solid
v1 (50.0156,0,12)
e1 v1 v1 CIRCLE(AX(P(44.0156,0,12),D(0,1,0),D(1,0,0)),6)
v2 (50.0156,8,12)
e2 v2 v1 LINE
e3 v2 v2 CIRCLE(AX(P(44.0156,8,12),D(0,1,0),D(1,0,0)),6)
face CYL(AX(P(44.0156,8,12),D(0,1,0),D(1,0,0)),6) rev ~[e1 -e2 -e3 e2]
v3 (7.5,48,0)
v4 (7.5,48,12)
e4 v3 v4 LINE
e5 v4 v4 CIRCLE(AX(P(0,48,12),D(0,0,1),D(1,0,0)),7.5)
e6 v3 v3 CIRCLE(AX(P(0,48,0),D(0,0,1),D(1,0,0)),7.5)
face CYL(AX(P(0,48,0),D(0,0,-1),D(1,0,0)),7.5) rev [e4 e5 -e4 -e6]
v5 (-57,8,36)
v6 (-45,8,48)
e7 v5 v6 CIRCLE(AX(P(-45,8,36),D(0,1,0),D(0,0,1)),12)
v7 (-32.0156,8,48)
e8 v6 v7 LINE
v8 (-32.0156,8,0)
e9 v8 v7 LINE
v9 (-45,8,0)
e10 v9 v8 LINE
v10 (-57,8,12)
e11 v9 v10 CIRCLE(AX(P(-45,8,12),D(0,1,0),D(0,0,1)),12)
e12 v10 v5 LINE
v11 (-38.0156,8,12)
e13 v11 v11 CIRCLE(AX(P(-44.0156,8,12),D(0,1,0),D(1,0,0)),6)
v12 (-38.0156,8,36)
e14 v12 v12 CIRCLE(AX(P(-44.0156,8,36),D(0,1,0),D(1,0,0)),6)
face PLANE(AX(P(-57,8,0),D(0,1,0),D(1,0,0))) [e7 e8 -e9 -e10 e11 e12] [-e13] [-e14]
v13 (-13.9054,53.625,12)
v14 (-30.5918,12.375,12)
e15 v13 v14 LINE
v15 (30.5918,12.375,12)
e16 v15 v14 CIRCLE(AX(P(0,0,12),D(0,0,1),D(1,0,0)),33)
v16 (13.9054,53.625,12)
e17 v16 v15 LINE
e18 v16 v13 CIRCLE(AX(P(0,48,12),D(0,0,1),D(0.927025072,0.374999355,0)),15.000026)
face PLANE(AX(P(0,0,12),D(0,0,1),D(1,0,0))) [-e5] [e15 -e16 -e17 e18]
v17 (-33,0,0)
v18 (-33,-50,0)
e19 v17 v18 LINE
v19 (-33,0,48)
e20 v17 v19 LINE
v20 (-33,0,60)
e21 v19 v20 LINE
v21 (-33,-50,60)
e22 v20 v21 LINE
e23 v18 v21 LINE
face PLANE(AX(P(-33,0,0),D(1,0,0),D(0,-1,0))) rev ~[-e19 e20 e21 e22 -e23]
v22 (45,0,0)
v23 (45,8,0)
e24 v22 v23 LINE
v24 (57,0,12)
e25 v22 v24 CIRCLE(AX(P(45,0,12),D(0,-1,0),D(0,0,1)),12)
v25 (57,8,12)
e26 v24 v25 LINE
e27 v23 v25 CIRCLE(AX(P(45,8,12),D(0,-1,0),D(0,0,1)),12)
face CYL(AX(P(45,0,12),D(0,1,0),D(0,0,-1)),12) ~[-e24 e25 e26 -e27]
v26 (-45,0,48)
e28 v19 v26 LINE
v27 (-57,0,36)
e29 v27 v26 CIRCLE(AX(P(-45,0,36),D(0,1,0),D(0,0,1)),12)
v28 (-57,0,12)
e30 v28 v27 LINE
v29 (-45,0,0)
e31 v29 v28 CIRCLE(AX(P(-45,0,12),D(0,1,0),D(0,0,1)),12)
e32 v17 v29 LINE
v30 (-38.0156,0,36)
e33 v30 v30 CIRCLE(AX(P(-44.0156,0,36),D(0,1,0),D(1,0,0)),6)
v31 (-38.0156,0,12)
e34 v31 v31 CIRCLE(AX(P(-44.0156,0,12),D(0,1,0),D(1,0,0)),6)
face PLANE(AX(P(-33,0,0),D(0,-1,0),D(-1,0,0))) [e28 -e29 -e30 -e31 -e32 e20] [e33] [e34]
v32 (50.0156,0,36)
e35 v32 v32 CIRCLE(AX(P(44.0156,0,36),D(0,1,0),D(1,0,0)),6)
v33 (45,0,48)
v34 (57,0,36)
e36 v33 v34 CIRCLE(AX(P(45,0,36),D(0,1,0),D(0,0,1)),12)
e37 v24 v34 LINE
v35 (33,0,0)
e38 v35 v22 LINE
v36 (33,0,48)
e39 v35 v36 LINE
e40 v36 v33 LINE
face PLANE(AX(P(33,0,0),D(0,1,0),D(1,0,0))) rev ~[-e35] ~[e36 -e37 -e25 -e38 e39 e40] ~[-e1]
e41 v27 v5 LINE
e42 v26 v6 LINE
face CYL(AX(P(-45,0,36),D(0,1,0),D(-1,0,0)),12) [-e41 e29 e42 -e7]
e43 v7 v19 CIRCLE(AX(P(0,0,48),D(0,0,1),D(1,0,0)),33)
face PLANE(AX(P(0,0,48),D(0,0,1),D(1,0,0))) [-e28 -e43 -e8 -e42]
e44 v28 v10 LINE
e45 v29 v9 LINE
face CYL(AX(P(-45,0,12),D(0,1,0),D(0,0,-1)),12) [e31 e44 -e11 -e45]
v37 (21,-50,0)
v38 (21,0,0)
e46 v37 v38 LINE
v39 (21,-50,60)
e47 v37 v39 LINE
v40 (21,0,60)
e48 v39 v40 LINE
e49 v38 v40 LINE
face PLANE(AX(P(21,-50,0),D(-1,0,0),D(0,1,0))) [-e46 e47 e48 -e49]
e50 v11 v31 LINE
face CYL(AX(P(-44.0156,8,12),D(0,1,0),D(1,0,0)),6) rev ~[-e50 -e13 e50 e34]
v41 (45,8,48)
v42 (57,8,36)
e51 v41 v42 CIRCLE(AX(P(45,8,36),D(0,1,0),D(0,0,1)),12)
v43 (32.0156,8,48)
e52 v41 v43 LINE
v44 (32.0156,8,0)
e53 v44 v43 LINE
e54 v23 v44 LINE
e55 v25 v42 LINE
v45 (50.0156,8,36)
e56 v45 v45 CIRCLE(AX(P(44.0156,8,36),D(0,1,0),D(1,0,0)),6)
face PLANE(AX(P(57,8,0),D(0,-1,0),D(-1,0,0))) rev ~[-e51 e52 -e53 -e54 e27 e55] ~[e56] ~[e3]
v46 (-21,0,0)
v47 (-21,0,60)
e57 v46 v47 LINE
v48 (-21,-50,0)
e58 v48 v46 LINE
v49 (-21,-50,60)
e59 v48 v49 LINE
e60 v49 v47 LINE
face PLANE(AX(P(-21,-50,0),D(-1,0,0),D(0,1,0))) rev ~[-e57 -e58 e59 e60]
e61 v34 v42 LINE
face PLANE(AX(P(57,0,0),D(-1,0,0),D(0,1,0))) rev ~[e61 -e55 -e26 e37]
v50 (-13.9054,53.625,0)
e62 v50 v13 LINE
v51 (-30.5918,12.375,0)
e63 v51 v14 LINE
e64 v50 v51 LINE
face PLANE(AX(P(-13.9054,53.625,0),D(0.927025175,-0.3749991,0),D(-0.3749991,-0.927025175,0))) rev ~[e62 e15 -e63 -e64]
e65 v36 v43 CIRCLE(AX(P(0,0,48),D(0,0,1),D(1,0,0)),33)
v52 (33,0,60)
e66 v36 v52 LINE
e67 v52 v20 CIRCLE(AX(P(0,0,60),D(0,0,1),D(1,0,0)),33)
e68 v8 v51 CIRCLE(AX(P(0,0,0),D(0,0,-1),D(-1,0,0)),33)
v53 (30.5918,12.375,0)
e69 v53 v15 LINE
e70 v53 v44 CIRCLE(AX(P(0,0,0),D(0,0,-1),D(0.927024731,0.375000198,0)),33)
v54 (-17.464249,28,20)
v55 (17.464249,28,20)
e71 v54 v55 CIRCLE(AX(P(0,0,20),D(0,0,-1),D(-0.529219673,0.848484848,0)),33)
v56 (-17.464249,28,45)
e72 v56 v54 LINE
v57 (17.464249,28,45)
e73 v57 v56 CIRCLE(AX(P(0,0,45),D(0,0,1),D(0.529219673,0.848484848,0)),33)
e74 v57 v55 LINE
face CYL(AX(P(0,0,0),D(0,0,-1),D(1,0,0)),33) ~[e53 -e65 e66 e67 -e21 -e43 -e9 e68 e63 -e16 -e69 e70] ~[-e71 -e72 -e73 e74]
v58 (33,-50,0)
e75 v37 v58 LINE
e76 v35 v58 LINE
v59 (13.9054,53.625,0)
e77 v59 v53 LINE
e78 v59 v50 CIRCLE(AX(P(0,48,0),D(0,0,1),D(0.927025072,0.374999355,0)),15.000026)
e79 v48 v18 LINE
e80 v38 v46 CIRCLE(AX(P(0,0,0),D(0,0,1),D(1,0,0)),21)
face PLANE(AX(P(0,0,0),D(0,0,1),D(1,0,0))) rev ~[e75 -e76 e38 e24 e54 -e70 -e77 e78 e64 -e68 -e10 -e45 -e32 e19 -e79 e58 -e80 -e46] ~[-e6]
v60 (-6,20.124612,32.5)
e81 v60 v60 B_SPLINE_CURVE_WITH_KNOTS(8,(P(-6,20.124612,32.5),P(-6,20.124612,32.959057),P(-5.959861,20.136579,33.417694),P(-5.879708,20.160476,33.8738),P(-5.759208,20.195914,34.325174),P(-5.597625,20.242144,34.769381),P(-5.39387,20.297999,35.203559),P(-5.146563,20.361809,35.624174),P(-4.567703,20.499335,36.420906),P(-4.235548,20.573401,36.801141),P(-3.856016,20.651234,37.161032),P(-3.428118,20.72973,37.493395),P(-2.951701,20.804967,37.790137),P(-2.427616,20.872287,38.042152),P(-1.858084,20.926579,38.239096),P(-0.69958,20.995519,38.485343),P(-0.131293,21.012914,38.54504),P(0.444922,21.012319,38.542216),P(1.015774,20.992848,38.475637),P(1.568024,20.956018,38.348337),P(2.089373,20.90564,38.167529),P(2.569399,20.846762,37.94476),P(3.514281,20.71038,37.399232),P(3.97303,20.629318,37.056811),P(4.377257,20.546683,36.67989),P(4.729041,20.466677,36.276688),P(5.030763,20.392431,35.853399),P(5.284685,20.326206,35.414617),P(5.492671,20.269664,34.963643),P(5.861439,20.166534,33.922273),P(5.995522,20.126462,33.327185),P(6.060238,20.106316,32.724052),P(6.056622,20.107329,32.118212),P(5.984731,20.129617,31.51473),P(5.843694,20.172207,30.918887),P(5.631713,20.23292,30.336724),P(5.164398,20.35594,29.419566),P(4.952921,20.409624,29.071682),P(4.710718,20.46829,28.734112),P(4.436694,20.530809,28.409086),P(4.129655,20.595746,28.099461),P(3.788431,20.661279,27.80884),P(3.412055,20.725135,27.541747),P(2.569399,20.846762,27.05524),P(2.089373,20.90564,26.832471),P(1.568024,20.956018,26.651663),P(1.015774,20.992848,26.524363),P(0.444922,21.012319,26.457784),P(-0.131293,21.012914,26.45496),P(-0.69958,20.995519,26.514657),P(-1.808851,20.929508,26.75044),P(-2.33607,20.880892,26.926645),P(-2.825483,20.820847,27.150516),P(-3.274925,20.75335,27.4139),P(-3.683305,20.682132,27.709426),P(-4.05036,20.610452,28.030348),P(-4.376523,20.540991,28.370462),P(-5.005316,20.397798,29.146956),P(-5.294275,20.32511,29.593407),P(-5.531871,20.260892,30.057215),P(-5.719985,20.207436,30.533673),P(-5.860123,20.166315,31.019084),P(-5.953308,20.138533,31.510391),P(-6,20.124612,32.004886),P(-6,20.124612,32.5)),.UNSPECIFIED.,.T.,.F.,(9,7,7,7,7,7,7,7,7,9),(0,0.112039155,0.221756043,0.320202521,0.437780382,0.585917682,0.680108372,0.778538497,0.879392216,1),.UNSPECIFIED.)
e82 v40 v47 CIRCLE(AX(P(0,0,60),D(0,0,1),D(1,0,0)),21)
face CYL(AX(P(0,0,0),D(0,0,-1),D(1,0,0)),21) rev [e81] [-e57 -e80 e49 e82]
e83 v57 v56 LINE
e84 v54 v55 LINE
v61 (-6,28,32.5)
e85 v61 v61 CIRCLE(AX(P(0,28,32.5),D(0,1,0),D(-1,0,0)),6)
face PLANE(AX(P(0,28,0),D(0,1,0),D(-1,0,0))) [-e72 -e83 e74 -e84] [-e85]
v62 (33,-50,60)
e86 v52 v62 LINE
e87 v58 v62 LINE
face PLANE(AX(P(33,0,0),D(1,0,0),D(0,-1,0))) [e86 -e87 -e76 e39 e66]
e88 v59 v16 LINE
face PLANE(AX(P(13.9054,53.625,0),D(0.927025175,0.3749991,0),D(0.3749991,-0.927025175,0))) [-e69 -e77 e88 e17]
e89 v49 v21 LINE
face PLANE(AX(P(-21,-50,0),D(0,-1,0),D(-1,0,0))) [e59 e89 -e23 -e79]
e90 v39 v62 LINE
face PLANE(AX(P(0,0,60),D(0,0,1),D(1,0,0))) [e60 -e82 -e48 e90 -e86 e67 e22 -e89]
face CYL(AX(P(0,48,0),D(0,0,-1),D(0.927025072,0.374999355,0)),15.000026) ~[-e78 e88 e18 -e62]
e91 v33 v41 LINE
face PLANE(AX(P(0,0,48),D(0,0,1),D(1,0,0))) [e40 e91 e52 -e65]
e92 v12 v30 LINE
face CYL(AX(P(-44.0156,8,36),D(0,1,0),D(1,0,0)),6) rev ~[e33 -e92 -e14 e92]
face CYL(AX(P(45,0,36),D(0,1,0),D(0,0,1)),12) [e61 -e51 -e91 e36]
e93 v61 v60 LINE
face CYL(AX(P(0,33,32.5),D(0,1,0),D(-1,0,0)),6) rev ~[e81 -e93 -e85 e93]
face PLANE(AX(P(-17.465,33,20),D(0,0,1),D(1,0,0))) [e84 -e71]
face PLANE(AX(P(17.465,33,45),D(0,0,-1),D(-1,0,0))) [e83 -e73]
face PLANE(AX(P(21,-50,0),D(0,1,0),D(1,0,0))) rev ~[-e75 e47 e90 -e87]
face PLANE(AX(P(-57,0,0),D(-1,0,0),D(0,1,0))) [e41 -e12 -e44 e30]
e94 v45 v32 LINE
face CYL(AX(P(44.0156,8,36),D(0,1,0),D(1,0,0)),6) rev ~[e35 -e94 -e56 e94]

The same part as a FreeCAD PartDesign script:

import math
import FreeCAD as App
import Part
import Sketcher
Q = App.Units.Quantity


def edges_at(feature, points):
    """Names of the edges that pass closest to the given points."""
    edges = feature.Shape.Edges
    near = lambda p: min(range(len(edges)), key=lambda i: edges[i].distToShape(Part.Vertex(*p))[0])
    return sorted({f"Edge{near(p) + 1}" for p in points})

doc = App.newDocument("Part")
body = doc.addObject("PartDesign::Body", "Body")

# Sketch on XY plane
sketch1 = body.newObject("Sketcher::SketchObject", "Sketch")
sketch1.AttachmentSupport = (doc.getObject("XY_Plane"), [""])
sketch1.MapMode = "FlatFace"
sketch1.addGeometry(Part.LineSegment(App.Vector(-33, -50, 0), App.Vector(-21, -50, 0)), False)
sketch1.addGeometry(Part.LineSegment(App.Vector(-21, -50, 0), App.Vector(-21, 0, 0)), False)
sketch1.addGeometry(Part.ArcOfCircle(Part.Circle(App.Vector(0, 0, 0), App.Vector(0, 0, 1), 21), math.radians(0), math.radians(180)), False)
sketch1.addGeometry(Part.LineSegment(App.Vector(21, 0, 0), App.Vector(21, -50, 0)), False)
sketch1.addGeometry(Part.LineSegment(App.Vector(21, -50, 0), App.Vector(33, -50, 0)), False)
sketch1.addGeometry(Part.LineSegment(App.Vector(33, -50, 0), App.Vector(33, 0, 0)), False)
sketch1.addGeometry(Part.ArcOfCircle(Part.Circle(App.Vector(0, 0, 0), App.Vector(0, 0, 1), 33), math.radians(0), math.radians(180)), False)
sketch1.addGeometry(Part.LineSegment(App.Vector(-33, 0, 0), App.Vector(-33, -50, 0)), False)
sketch1.addConstraint(Sketcher.Constraint("Coincident", 0, 2, 1, 1))
sketch1.addConstraint(Sketcher.Constraint("Tangent", 1, 2, 2, 2))
sketch1.addConstraint(Sketcher.Constraint("Tangent", 2, 1, 3, 1))
sketch1.addConstraint(Sketcher.Constraint("Coincident", 3, 2, 4, 1))
sketch1.addConstraint(Sketcher.Constraint("Coincident", 4, 2, 5, 1))
sketch1.addConstraint(Sketcher.Constraint("Tangent", 5, 2, 6, 1))
sketch1.addConstraint(Sketcher.Constraint("Tangent", 6, 2, 7, 1))
sketch1.addConstraint(Sketcher.Constraint("Coincident", 7, 2, 0, 1))
sketch1.addConstraint(Sketcher.Constraint("Horizontal", 0))
sketch1.addConstraint(Sketcher.Constraint("Vertical", 1))
sketch1.addConstraint(Sketcher.Constraint("Vertical", 3))
sketch1.addConstraint(Sketcher.Constraint("Horizontal", 4))
sketch1.addConstraint(Sketcher.Constraint("Vertical", 5))
sketch1.addConstraint(Sketcher.Constraint("Vertical", 7))
sketch1.addConstraint(Sketcher.Constraint("Coincident", 2, 3, -1, 1))
sketch1.addConstraint(Sketcher.Constraint("Coincident", 6, 3, -1, 1))
sketch1.addConstraint(Sketcher.Constraint("Horizontal", 0, 2, 3, 2))
sketch1.addConstraint(Sketcher.Constraint("Radius", 2, Q("21 mm")))
sketch1.addConstraint(Sketcher.Constraint("Radius", 6, Q("33 mm")))
sketch1.addConstraint(Sketcher.Constraint("DistanceY", 1, 1, 1, 2, Q("50 mm")))
pad1 = body.newObject("PartDesign::Pad", "Pad")
pad1.Profile = sketch1
pad1.Length = 60

# Sketch on XY plane
sketch2 = body.newObject("Sketcher::SketchObject", "Sketch001")
sketch2.AttachmentSupport = (doc.getObject("XY_Plane"), [""])
sketch2.MapMode = "FlatFace"
sketch2.addGeometry(Part.LineSegment(App.Vector(-14, 54, 0), App.Vector(-31, 12, 0)), False)
sketch2.addGeometry(Part.ArcOfCircle(Part.Circle(App.Vector(0, 0, 0), App.Vector(0, 0, 1), 33), math.radians(22), math.radians(158)), False)
sketch2.addGeometry(Part.LineSegment(App.Vector(31, 12, 0), App.Vector(14, 54, 0)), False)
sketch2.addGeometry(Part.ArcOfCircle(Part.Circle(App.Vector(0, 48, 0), App.Vector(0, 0, 1), 15), math.radians(22), math.radians(158)), False)
sketch2.addGeometry(Part.Circle(App.Vector(0, 48, 0), App.Vector(0, 0, 1), 8), False)
sketch2.addConstraint(Sketcher.Constraint("Tangent", 0, 2, 1, 2))
sketch2.addConstraint(Sketcher.Constraint("Tangent", 1, 1, 2, 1))
sketch2.addConstraint(Sketcher.Constraint("Tangent", 2, 2, 3, 1))
sketch2.addConstraint(Sketcher.Constraint("Tangent", 3, 2, 0, 1))
sketch2.addConstraint(Sketcher.Constraint("Coincident", 1, 3, -1, 1))
sketch2.addConstraint(Sketcher.Constraint("Coincident", 4, 3, 3, 3))
sketch2.addConstraint(Sketcher.Constraint("PointOnObject", 3, 3, -2))
sketch2.addConstraint(Sketcher.Constraint("Diameter", 4, Q("15 mm")))
sketch2.addConstraint(Sketcher.Constraint("Radius", 1, Q("33 mm")))
sketch2.addConstraint(Sketcher.Constraint("Radius", 3, Q("15 mm")))
sketch2.addConstraint(Sketcher.Constraint("DistanceY", -1, 1, 3, 3, Q("48 mm")))
pad2 = body.newObject("PartDesign::Pad", "Pad001")
pad2.Profile = sketch2
pad2.Length = 12

# Sketch on XY plane
sketch3 = body.newObject("Sketcher::SketchObject", "Sketch002")
sketch3.AttachmentSupport = (doc.getObject("XY_Plane"), [""])
sketch3.MapMode = "FlatFace"
sketch3.addGeometry(Part.LineSegment(App.Vector(-57, 0, 0), App.Vector(-33, 0, 0)), False)
sketch3.addGeometry(Part.ArcOfCircle(Part.Circle(App.Vector(0, 0, 0), App.Vector(0, 0, 1), 33), math.radians(165.97), math.radians(180)), False)
sketch3.addGeometry(Part.LineSegment(App.Vector(-32, 8, 0), App.Vector(-57, 8, 0)), False)
sketch3.addGeometry(Part.LineSegment(App.Vector(-57, 8, 0), App.Vector(-57, 0, 0)), False)
sketch3.addGeometry(Part.ArcOfCircle(Part.Circle(App.Vector(0, 0, 0), App.Vector(0, 0, 1), 33), math.radians(0), math.radians(14.03)), False)
sketch3.addGeometry(Part.LineSegment(App.Vector(33, 0, 0), App.Vector(57, 0, 0)), False)
sketch3.addGeometry(Part.LineSegment(App.Vector(57, 0, 0), App.Vector(57, 8, 0)), False)
sketch3.addGeometry(Part.LineSegment(App.Vector(57, 8, 0), App.Vector(32, 8, 0)), False)
sketch3.addConstraint(Sketcher.Constraint("Coincident", 0, 2, 1, 2))
sketch3.addConstraint(Sketcher.Constraint("Coincident", 1, 1, 2, 1))
sketch3.addConstraint(Sketcher.Constraint("Coincident", 2, 2, 3, 1))
sketch3.addConstraint(Sketcher.Constraint("Coincident", 3, 2, 0, 1))
sketch3.addConstraint(Sketcher.Constraint("Coincident", 4, 1, 5, 1))
sketch3.addConstraint(Sketcher.Constraint("Coincident", 5, 2, 6, 1))
sketch3.addConstraint(Sketcher.Constraint("Coincident", 6, 2, 7, 1))
sketch3.addConstraint(Sketcher.Constraint("Coincident", 7, 2, 4, 2))
sketch3.addConstraint(Sketcher.Constraint("Horizontal", 0))
sketch3.addConstraint(Sketcher.Constraint("Horizontal", 2))
sketch3.addConstraint(Sketcher.Constraint("Vertical", 3))
sketch3.addConstraint(Sketcher.Constraint("Horizontal", 5))
sketch3.addConstraint(Sketcher.Constraint("Vertical", 6))
sketch3.addConstraint(Sketcher.Constraint("Horizontal", 7))
sketch3.addConstraint(Sketcher.Constraint("Coincident", 1, 3, -1, 1))
sketch3.addConstraint(Sketcher.Constraint("Coincident", 4, 3, -1, 1))
sketch3.addConstraint(Sketcher.Constraint("Equal", 1, 4))
sketch3.addConstraint(Sketcher.Constraint("Symmetric", 3, 2, 5, 2, -1, 1))
sketch3.addConstraint(Sketcher.Constraint("PointOnObject", 0, 2, -1))
sketch3.addConstraint(Sketcher.Constraint("Horizontal", 2, 2, 6, 2))
sketch3.addConstraint(Sketcher.Constraint("Radius", 1, Q("33 mm")))
sketch3.addConstraint(Sketcher.Constraint("DistanceX", 0, 1, 0, 2, Q("24 mm")))
sketch3.addConstraint(Sketcher.Constraint("DistanceY", 3, 2, 3, 1, Q("8 mm")))
pad3 = body.newObject("PartDesign::Pad", "Pad002")
pad3.Profile = sketch3
pad3.Length = 48
doc.recompute()

fillet = body.newObject("PartDesign::Fillet", "Fillet")
fillet.Base = (pad3, edges_at(pad3, [
    (57, 4, 48),
    (-57, 4, 48),
    (57, 4, 0),
    (-57, 4, 0),
]))
fillet.Radius = 12

# Sketch on XZ plane
sketch4 = body.newObject("Sketcher::SketchObject", "Sketch003")
sketch4.AttachmentSupport = (doc.getObject("XZ_Plane"), [""])
sketch4.MapMode = "FlatFace"
sketch4.AttachmentOffset = App.Placement(App.Vector(0, 0, -8), App.Rotation())
sketch4.addGeometry(Part.Circle(App.Vector(44, 12, 0), App.Vector(0, 0, 1), 6), False)
sketch4.addGeometry(Part.Circle(App.Vector(44, 36, 0), App.Vector(0, 0, 1), 6), False)
sketch4.addGeometry(Part.Circle(App.Vector(-44, 12, 0), App.Vector(0, 0, 1), 6), False)
sketch4.addGeometry(Part.Circle(App.Vector(-44, 36, 0), App.Vector(0, 0, 1), 6), False)
sketch4.addConstraint(Sketcher.Constraint("Equal", 0, 1))
sketch4.addConstraint(Sketcher.Constraint("Equal", 1, 2))
sketch4.addConstraint(Sketcher.Constraint("Equal", 2, 3))
sketch4.addConstraint(Sketcher.Constraint("Symmetric", 0, 3, 2, 3, -2))
sketch4.addConstraint(Sketcher.Constraint("Symmetric", 1, 3, 3, 3, -2))
sketch4.addConstraint(Sketcher.Constraint("Vertical", 0, 3, 1, 3))
sketch4.addConstraint(Sketcher.Constraint("Diameter", 0, Q("12 mm")))
sketch4.addConstraint(Sketcher.Constraint("DistanceY", -1, 1, 0, 3, Q("12 mm")))
sketch4.addConstraint(Sketcher.Constraint("DistanceY", -1, 1, 1, 3, Q("36 mm")))
sketch4.addConstraint(Sketcher.Constraint("DistanceX", -1, 1, 0, 3, Q("44.0156 mm")))
pocket1 = body.newObject("PartDesign::Pocket", "Pocket")
pocket1.Profile = sketch4
pocket1.Length = 48
pocket1.Reversed = True

# Sketch on XZ plane
sketch5 = body.newObject("Sketcher::SketchObject", "Sketch004")
sketch5.AttachmentSupport = (doc.getObject("XZ_Plane"), [""])
sketch5.MapMode = "FlatFace"
sketch5.AttachmentOffset = App.Placement(App.Vector(0, 0, -33), App.Rotation())
sketch5.addGeometry(Part.LineSegment(App.Vector(-17, 45, 0), App.Vector(17, 45, 0)), False)
sketch5.addGeometry(Part.LineSegment(App.Vector(17, 45, 0), App.Vector(17, 20, 0)), False)
sketch5.addGeometry(Part.LineSegment(App.Vector(17, 20, 0), App.Vector(-17, 20, 0)), False)
sketch5.addGeometry(Part.LineSegment(App.Vector(-17, 20, 0), App.Vector(-17, 45, 0)), False)
sketch5.addGeometry(Part.Circle(App.Vector(0, 32, 0), App.Vector(0, 0, 1), 6), False)
sketch5.addConstraint(Sketcher.Constraint("Coincident", 0, 2, 1, 1))
sketch5.addConstraint(Sketcher.Constraint("Coincident", 1, 2, 2, 1))
sketch5.addConstraint(Sketcher.Constraint("Coincident", 2, 2, 3, 1))
sketch5.addConstraint(Sketcher.Constraint("Coincident", 3, 2, 0, 1))
sketch5.addConstraint(Sketcher.Constraint("Horizontal", 0))
sketch5.addConstraint(Sketcher.Constraint("Vertical", 1))
sketch5.addConstraint(Sketcher.Constraint("Horizontal", 2))
sketch5.addConstraint(Sketcher.Constraint("Vertical", 3))
sketch5.addConstraint(Sketcher.Constraint("PointOnObject", 4, 3, -2))
sketch5.addConstraint(Sketcher.Constraint("Diameter", 4, Q("12 mm")))
sketch5.addConstraint(Sketcher.Constraint("DistanceY", 1, 2, 1, 1, Q("25 mm")))
sketch5.addConstraint(Sketcher.Constraint("DistanceX", 0, 1, 0, 2, Q("34.93 mm")))
sketch5.addConstraint(Sketcher.Constraint("DistanceY", -1, 1, 0, 2, Q("45 mm")))
sketch5.addConstraint(Sketcher.Constraint("DistanceY", -1, 1, 4, 3, Q("32.5 mm")))
sketch5.addConstraint(Sketcher.Constraint("DistanceX", -1, 1, 0, 2, Q("17.465 mm")))
pocket2 = body.newObject("PartDesign::Pocket", "Pocket001")
pocket2.Profile = sketch5
pocket2.Length = 5
pocket2.Reversed = True

# Sketch on XZ plane
sketch6 = body.newObject("Sketcher::SketchObject", "Sketch005")
sketch6.AttachmentSupport = (doc.getObject("XZ_Plane"), [""])
sketch6.MapMode = "FlatFace"
sketch6.AttachmentOffset = App.Placement(App.Vector(0, 0, -33), App.Rotation())
sketch6.addGeometry(Part.Circle(App.Vector(0, 32, 0), App.Vector(0, 0, 1), 6), False)
sketch6.addConstraint(Sketcher.Constraint("PointOnObject", 0, 3, -2))
sketch6.addConstraint(Sketcher.Constraint("Diameter", 0, Q("12 mm")))
sketch6.addConstraint(Sketcher.Constraint("DistanceY", -1, 1, 0, 3, Q("32.5 mm")))
pocket3 = body.newObject("PartDesign::Pocket", "Pocket002")
pocket3.Profile = sketch6
pocket3.Length = 20
pocket3.Reversed = True

doc.recompute()
